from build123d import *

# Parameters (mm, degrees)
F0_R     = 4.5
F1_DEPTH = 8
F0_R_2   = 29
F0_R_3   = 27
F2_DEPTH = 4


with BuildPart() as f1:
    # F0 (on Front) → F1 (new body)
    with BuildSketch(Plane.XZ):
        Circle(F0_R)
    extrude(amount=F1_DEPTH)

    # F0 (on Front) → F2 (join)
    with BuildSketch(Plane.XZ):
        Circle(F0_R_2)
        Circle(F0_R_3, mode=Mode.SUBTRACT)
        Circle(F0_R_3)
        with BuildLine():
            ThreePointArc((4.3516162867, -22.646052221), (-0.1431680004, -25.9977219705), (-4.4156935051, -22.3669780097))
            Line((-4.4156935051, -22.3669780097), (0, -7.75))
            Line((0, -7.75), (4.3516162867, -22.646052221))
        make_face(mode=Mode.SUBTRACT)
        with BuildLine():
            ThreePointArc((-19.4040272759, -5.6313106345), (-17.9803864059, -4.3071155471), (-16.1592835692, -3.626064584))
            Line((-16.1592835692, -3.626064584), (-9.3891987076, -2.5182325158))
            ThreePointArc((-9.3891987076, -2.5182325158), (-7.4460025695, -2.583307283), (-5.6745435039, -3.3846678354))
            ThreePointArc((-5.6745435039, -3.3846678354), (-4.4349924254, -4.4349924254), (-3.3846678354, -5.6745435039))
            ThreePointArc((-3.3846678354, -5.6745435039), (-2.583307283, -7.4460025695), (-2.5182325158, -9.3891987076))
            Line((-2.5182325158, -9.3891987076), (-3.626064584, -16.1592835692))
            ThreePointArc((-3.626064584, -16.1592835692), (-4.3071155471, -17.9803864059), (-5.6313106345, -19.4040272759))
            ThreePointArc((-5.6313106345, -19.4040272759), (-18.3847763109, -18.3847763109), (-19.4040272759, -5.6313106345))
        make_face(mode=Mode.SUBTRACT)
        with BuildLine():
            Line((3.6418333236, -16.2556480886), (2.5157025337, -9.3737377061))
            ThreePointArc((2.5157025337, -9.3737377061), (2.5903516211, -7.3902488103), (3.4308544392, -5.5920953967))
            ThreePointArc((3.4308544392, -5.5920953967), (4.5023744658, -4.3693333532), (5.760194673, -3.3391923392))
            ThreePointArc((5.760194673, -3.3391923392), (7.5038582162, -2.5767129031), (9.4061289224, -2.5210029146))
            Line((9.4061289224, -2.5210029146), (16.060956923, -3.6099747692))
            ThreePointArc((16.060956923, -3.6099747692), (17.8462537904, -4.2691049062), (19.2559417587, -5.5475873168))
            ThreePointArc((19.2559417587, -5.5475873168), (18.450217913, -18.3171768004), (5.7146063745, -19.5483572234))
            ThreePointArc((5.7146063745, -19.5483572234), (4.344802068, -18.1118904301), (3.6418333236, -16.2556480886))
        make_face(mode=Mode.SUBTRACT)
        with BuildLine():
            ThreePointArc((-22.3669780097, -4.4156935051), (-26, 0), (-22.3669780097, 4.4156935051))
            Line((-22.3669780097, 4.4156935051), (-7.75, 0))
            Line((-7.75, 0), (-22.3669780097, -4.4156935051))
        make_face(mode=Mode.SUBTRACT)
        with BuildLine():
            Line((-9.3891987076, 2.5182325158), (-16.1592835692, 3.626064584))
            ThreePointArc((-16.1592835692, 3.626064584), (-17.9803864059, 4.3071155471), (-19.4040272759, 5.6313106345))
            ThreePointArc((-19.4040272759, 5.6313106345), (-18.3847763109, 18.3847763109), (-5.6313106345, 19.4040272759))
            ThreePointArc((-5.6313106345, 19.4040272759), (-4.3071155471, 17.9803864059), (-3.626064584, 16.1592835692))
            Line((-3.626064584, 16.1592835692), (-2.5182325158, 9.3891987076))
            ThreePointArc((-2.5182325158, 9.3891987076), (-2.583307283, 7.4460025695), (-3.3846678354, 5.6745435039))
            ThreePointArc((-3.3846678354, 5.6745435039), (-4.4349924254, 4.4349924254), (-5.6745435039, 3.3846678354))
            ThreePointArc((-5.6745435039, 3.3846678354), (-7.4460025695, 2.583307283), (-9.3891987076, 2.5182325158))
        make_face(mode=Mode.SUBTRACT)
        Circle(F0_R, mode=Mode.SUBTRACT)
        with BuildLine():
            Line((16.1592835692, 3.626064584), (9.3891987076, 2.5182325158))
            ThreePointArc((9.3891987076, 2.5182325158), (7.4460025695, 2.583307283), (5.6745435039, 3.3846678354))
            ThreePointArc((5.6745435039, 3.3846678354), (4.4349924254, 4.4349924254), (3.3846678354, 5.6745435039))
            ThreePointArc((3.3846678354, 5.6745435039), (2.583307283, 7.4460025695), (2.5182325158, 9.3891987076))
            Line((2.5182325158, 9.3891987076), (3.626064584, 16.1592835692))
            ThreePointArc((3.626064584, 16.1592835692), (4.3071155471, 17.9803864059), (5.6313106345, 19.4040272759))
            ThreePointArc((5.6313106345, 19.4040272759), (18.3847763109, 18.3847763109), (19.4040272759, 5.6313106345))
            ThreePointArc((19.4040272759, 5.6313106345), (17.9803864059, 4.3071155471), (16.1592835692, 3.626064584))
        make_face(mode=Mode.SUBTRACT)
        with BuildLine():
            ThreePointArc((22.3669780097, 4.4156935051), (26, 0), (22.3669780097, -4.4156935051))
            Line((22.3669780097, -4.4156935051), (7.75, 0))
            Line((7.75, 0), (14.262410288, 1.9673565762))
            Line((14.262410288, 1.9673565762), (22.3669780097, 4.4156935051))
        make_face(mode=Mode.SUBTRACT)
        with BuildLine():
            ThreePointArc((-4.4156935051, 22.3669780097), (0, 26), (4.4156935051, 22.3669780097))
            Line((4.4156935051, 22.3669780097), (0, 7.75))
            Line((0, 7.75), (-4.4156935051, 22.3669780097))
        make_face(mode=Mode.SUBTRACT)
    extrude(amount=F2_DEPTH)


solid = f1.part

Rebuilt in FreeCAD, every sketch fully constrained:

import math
import FreeCAD as App
import Part
import Sketcher

doc = App.newDocument("Part")
body = doc.addObject("PartDesign::Body", "Body")

# Sketch on XZ plane
sketch1 = doc.addObject("Sketcher::SketchObject", "Sketch")
body.addObject(sketch1)
sketch1.AttachmentSupport = (doc.XZ_Plane, [""])
sketch1.MapMode = "FlatFace"
sketch1.addGeometry(Part.Circle(App.Vector(0, 0, 0), App.Vector(0, 0, 1), 4.5), False)
sketch1.addConstraint([
    Sketcher.Constraint("Coincident", 0, 3, -1, 1),
    Sketcher.Constraint("Diameter", 0, 9.0),
])
pad1 = doc.addObject("PartDesign::Pad", "Pad")
body.addObject(pad1)
pad1.Profile = sketch1
pad1.Length = 8

# Sketch on XZ plane
sketch2 = doc.addObject("Sketcher::SketchObject", "Sketch001")
body.addObject(sketch2)
sketch2.AttachmentSupport = (doc.XZ_Plane, [""])
sketch2.MapMode = "FlatFace"
sketch2.addGeometry([
    Part.Circle(App.Vector(0, 0, 0), App.Vector(0, 0, 1), 29),  # 0
    Part.LineSegment(App.Vector(0, -7.8, 0), App.Vector(4.4, -22.6, 0)),  # 1
    Part.ArcOfCircle(Part.Circle(App.Vector(0, -21.5, 0), App.Vector(0, 0, 1), 4.5), math.radians(-169), math.radians(-15)),  # 2
    Part.LineSegment(App.Vector(-4.4, -22.4, 0), App.Vector(0, -7.8, 0)),  # 3
    Part.ArcOfCircle(Part.Circle(App.Vector(-11.4, -11.4, 0), App.Vector(0, 0, 1), 9.9), math.radians(144), math.radians(306)),  # 4
    Part.ArcOfCircle(Part.Circle(App.Vector(-15.4, -8.6, 0), App.Vector(0, 0, 1), 5), math.radians(99), math.radians(144)),  # 5
    Part.LineSegment(App.Vector(-16.2, -3.6, 0), App.Vector(-9.4, -2.5, 0)),  # 6
    Part.ArcOfCircle(Part.Circle(App.Vector(-8.6, -7.5, 0), App.Vector(0, 0, 1), 5), math.radians(54), math.radians(99)),  # 7
    Part.ArcOfCircle(Part.Circle(App.Vector(-11.4, -11.4, 0), App.Vector(0, 0, 1), 9.9), math.radians(35.55), math.radians(54.45)),  # 8
    Part.ArcOfCircle(Part.Circle(App.Vector(-7.5, -8.6, 0), App.Vector(0, 0, 1), 5), math.radians(-9), math.radians(36)),  # 9
    Part.LineSegment(App.Vector(-2.5, -9.4, 0), App.Vector(-3.6, -16.2, 0)),  # 10
    Part.ArcOfCircle(Part.Circle(App.Vector(-8.6, -15.4, 0), App.Vector(0, 0, 1), 5), math.radians(-54), math.radians(-9)),  # 11
    Part.ArcOfCircle(Part.Circle(App.Vector(8.6, -15.4, 0), App.Vector(0, 0, 1), 5), math.radians(-171), math.radians(-125)),  # 12
    Part.LineSegment(App.Vector(3.6, -16.3, 0), App.Vector(2.5, -9.4, 0)),  # 13
    Part.ArcOfCircle(Part.Circle(App.Vector(7.5, -8.6, 0), App.Vector(0, 0, 1), 5), math.radians(143), math.radians(189)),  # 14
    Part.ArcOfCircle(Part.Circle(App.Vector(11.4, -11.5, 0), App.Vector(0, 0, 1), 9.9), math.radians(124.59), math.radians(143.5)),  # 15
    Part.ArcOfCircle(Part.Circle(App.Vector(8.6, -7.5, 0), App.Vector(0, 0, 1), 5), math.radians(81), math.radians(125)),  # 16
    Part.LineSegment(App.Vector(9.4, -2.5, 0), App.Vector(16.1, -3.6, 0)),  # 17
    Part.ArcOfCircle(Part.Circle(App.Vector(15.3, -8.5, 0), App.Vector(0, 0, 1), 5), math.radians(37), math.radians(81)),  # 18
    Part.ArcOfCircle(Part.Circle(App.Vector(11.4, -11.5, 0), App.Vector(0, 0, 1), 9.9), math.radians(-125), math.radians(37)),  # 19
    Part.LineSegment(App.Vector(-7.8, 0, 0), App.Vector(-22.4, -4.4, 0)),  # 20
    Part.ArcOfCircle(Part.Circle(App.Vector(-21.5, 0, 0), App.Vector(0, 0, 1), 4.5), math.radians(101), math.radians(259)),  # 21
    Part.LineSegment(App.Vector(-22.4, 4.4, 0), App.Vector(-7.8, 0, 0)),  # 22
    Part.ArcOfCircle(Part.Circle(App.Vector(-8.6, 7.5, 0), App.Vector(0, 0, 1), 5), math.radians(-99), math.radians(-54)),  # 23
    Part.LineSegment(App.Vector(-9.4, 2.5, 0), App.Vector(-16.2, 3.6, 0)),  # 24
    Part.ArcOfCircle(Part.Circle(App.Vector(-15.4, 8.6, 0), App.Vector(0, 0, 1), 5), math.radians(-144), math.radians(-99)),  # 25
    Part.ArcOfCircle(Part.Circle(App.Vector(-11.4, 11.4, 0), App.Vector(0, 0, 1), 9.9), math.radians(54), math.radians(216)),  # 26
    Part.ArcOfCircle(Part.Circle(App.Vector(-8.6, 15.4, 0), App.Vector(0, 0, 1), 5), math.radians(9), math.radians(54)),  # 27
    Part.LineSegment(App.Vector(-3.6, 16.2, 0), App.Vector(-2.5, 9.4, 0)),  # 28
    Part.ArcOfCircle(Part.Circle(App.Vector(-7.5, 8.6, 0), App.Vector(0, 0, 1), 5), math.radians(-36), math.radians(9)),  # 29
    Part.ArcOfCircle(Part.Circle(App.Vector(-11.4, 11.4, 0), App.Vector(0, 0, 1), 9.9), math.radians(-54.45), math.radians(-35.55)),  # 30
    Part.Circle(App.Vector(0, 0, 0), App.Vector(0, 0, 1), 4.5),  # 31
    Part.ArcOfCircle(Part.Circle(App.Vector(15.4, 8.6, 0), App.Vector(0, 0, 1), 5), math.radians(-81), math.radians(-36)),  # 32
    Part.LineSegment(App.Vector(16.2, 3.6, 0), App.Vector(9.4, 2.5, 0)),  # 33
    Part.ArcOfCircle(Part.Circle(App.Vector(8.6, 7.5, 0), App.Vector(0, 0, 1), 5), math.radians(-126), math.radians(-81)),  # 34
    Part.ArcOfCircle(Part.Circle(App.Vector(11.4, 11.4, 0), App.Vector(0, 0, 1), 9.9), math.radians(-144.45), math.radians(-125.55)),  # 35
    Part.ArcOfCircle(Part.Circle(App.Vector(7.5, 8.6, 0), App.Vector(0, 0, 1), 5), math.radians(171), math.radians(216)),  # 36
    Part.LineSegment(App.Vector(2.5, 9.4, 0), App.Vector(3.6, 16.2, 0)),  # 37
    Part.ArcOfCircle(Part.Circle(App.Vector(8.6, 15.4, 0), App.Vector(0, 0, 1), 5), math.radians(126), math.radians(171)),  # 38
    Part.ArcOfCircle(Part.Circle(App.Vector(11.4, 11.4, 0), App.Vector(0, 0, 1), 9.9), math.radians(-36), math.radians(126)),  # 39
    Part.LineSegment(App.Vector(14.3, 2, 0), App.Vector(22.4, 4.4, 0)),  # 40
    Part.ArcOfCircle(Part.Circle(App.Vector(21.5, 0, 0), App.Vector(0, 0, 1), 4.5), math.radians(-79), math.radians(79)),  # 41
    Part.LineSegment(App.Vector(22.4, -4.4, 0), App.Vector(7.8, 0, 0)),  # 42
    Part.LineSegment(App.Vector(7.8, 0, 0), App.Vector(14.3, 2, 0)),  # 43
    Part.LineSegment(App.Vector(0, 7.8, 0), App.Vector(-4.4, 22.4, 0)),  # 44
    Part.ArcOfCircle(Part.Circle(App.Vector(0, 21.5, 0), App.Vector(0, 0, 1), 4.5), math.radians(11), math.radians(169)),  # 45
    Part.LineSegment(App.Vector(4.4, 22.4, 0), App.Vector(0, 7.8, 0)),  # 46
], False)
sketch2.addConstraint([
    Sketcher.Constraint("Coincident", 1, 2, 2, 2),
    Sketcher.Constraint("Coincident", 2, 1, 3, 1),
    Sketcher.Constraint("Coincident", 3, 2, 1, 1),
    Sketcher.Constraint("Tangent", 4, 1, 5, 2),
    Sketcher.Constraint("Tangent", 5, 1, 6, 1),
    Sketcher.Constraint("Tangent", 6, 2, 7, 2),
    Sketcher.Constraint("Tangent", 7, 1, 8, 2),
    Sketcher.Constraint("Tangent", 8, 1, 9, 2),
    Sketcher.Constraint("Tangent", 9, 1, 10, 1),
    Sketcher.Constraint("Tangent", 10, 2, 11, 2),
    Sketcher.Constraint("Tangent", 11, 1, 4, 2),
    Sketcher.Constraint("Tangent", 12, 1, 13, 1),
    Sketcher.Constraint("Tangent", 13, 2, 14, 2),
    Sketcher.Constraint("Tangent", 14, 1, 15, 2),
    Sketcher.Constraint("Tangent", 15, 1, 16, 2),
    Sketcher.Constraint("Tangent", 16, 1, 17, 1),
    Sketcher.Constraint("Tangent", 17, 2, 18, 2),
    Sketcher.Constraint("Tangent", 18, 1, 19, 2),
    Sketcher.Constraint("Tangent", 19, 1, 12, 2),
    Sketcher.Constraint("Coincident", 20, 2, 21, 2),
    Sketcher.Constraint("Coincident", 21, 1, 22, 1),
    Sketcher.Constraint("Coincident", 22, 2, 20, 1),
    Sketcher.Constraint("Tangent", 23, 1, 24, 1),
    Sketcher.Constraint("Tangent", 24, 2, 25, 2),
    Sketcher.Constraint("Tangent", 25, 1, 26, 2),
    Sketcher.Constraint("Tangent", 26, 1, 27, 2),
    Sketcher.Constraint("Tangent", 27, 1, 28, 1),
    Sketcher.Constraint("Tangent", 28, 2, 29, 2),
    Sketcher.Constraint("Tangent", 29, 1, 30, 2),
    Sketcher.Constraint("Tangent", 30, 1, 23, 2),
    Sketcher.Constraint("Tangent", 32, 1, 33, 1),
    Sketcher.Constraint("Tangent", 33, 2, 34, 2),
    Sketcher.Constraint("Tangent", 34, 1, 35, 2),
    Sketcher.Constraint("Tangent", 35, 1, 36, 2),
    Sketcher.Constraint("Tangent", 36, 1, 37, 1),
    Sketcher.Constraint("Tangent", 37, 2, 38, 2),
    Sketcher.Constraint("Tangent", 38, 1, 39, 2),
    Sketcher.Constraint("Tangent", 39, 1, 32, 2),
    Sketcher.Constraint("Coincident", 40, 2, 41, 2),
    Sketcher.Constraint("Coincident", 41, 1, 42, 1),
    Sketcher.Constraint("Coincident", 42, 2, 43, 1),
    Sketcher.Constraint("Coincident", 43, 2, 40, 1),
    Sketcher.Constraint("Coincident", 44, 2, 45, 2),
    Sketcher.Constraint("Coincident", 45, 1, 46, 1),
    Sketcher.Constraint("Coincident", 46, 2, 44, 1),
    Sketcher.Constraint("Coincident", 0, 3, -1, 1),
    Sketcher.Constraint("Coincident", 31, 3, -1, 1),
    Sketcher.Constraint("Coincident", 8, 3, 4, 3),
    Sketcher.Constraint("Coincident", 19, 3, 15, 3),
    Sketcher.Constraint("Coincident", 30, 3, 26, 3),
    Sketcher.Constraint("Coincident", 39, 3, 35, 3),
    Sketcher.Constraint("Equal", 5, 7),
    Sketcher.Constraint("Equal", 4, 8),
    Sketcher.Constraint("Equal", 7, 9),
    Sketcher.Constraint("Equal", 9, 11),
    Sketcher.Constraint("Equal", 11, 12),
    Sketcher.Constraint("Equal", 12, 14),
    Sketcher.Constraint("Equal", 8, 15),
    Sketcher.Constraint("Equal", 14, 16),
    Sketcher.Constraint("Equal", 16, 18),
    Sketcher.Constraint("Equal", 15, 19),
    Sketcher.Constraint("Equal", 2, 21),
    Sketcher.Constraint("Equal", 18, 23),
    Sketcher.Constraint("Equal", 23, 25),
    Sketcher.Constraint("Equal", 19, 26),
    Sketcher.Constraint("Equal", 25, 27),
    Sketcher.Constraint("Equal", 27, 29),
    Sketcher.Constraint("Equal", 26, 30),
    Sketcher.Constraint("Equal", 21, 31),
    Sketcher.Constraint("Equal", 29, 32),
    Sketcher.Constraint("Equal", 32, 34),
    Sketcher.Constraint("Equal", 30, 35),
    Sketcher.Constraint("Equal", 34, 36),
    Sketcher.Constraint("Equal", 36, 38),
    Sketcher.Constraint("Equal", 35, 39),
    Sketcher.Constraint("Equal", 31, 41),
    Sketcher.Constraint("Equal", 41, 45),
    Sketcher.Constraint("Symmetric", 5, 3, 32, 3, -1, 1),
    Sketcher.Constraint("Symmetric", 7, 3, 34, 3, -1, 1),
    Sketcher.Constraint("Symmetric", 21, 3, 41, 3, -1, 1),
    Sketcher.Constraint("Symmetric", 2, 3, 45, 3, -1, 1),
    Sketcher.Constraint("Symmetric", 9, 1, 36, 1, -1, 1),
    Sketcher.Constraint("Symmetric", 22, 2, 42, 2, -1, 1),
    Sketcher.Constraint("Symmetric", 3, 2, 46, 2, -1, 1),
    Sketcher.Constraint("Symmetric", 25, 3, 32, 3, -2),
    Sketcher.Constraint("Symmetric", 23, 3, 34, 3, -2),
    Sketcher.Constraint("Symmetric", 28, 2, 36, 1, -2),
    Sketcher.Constraint("Symmetric", 21, 1, 40, 2, -2),
    Sketcher.Constraint("Symmetric", 44, 2, 45, 1, -2),
    Sketcher.Constraint("PointOnObject", 3, 2, -2),
    Sketcher.Constraint("PointOnObject", 22, 2, -1),
    Sketcher.Constraint("Perpendicular", 6, 13),
    Sketcher.Constraint("Perpendicular", 10, 17),
    Sketcher.Constraint("Perpendicular", 3, 22),
    Sketcher.Constraint("Parallel", 17, 24),
    Sketcher.Constraint("Parallel", 20, 40),
    Sketcher.Constraint("Parallel", 22, 42),
    Sketcher.Constraint("Parallel", 40, 43),
    Sketcher.Constraint("Perpendicular", 43, 44),
    Sketcher.Constraint("Equal", 6, 10),
    Sketcher.Constraint("Equal", 3, 20),
    Sketcher.Constraint("Diameter", 0, 58.0),
    Sketcher.Constraint("Diameter", 31, 9.0),
    Sketcher.Constraint("Radius", 5, 5.0),
    Sketcher.Constraint("DistanceY", 2, 3, -1, 1, 21.5),
    Sketcher.Constraint("DistanceX", 21, 3, -1, 1, 21.5),
    Sketcher.Constraint("DistanceY", 3, 2, -1, 1, 7.75),
    Sketcher.Constraint("Radius", 4, 9.863987),
    Sketcher.Constraint("DistanceX", 6, 2, -1, 1, 9.389199),
    Sketcher.Constraint("DistanceY", 9, 1, -1, 1, 9.389199),
    Sketcher.Constraint("Distance", 13, 6.97344),
    Sketcher.Constraint("Distance", 40, 8.466308),
    Sketcher.Constraint("DistanceX", 5, 3, -1, 1, 15.351841),
    Sketcher.Constraint("DistanceY", 15, 3, -1, 1, 11.459588),
    Sketcher.Constraint("DistanceY", 2, 1, -1, 1, 22.366978),
    Sketcher.Constraint("DistanceY", 4, 1, -1, 1, 5.631311),
    Sketcher.Constraint("DistanceX", -1, 1, 16, 1, 9.406129),
    Sketcher.Constraint("DistanceX", -1, 1, 18, 1, 19.255942),
    Sketcher.Constraint("Distance", 1, 15.518664),
])
pad2 = doc.addObject("PartDesign::Pad", "Pad001")
body.addObject(pad2)
pad2.Profile = sketch2
pad2.Length = 4

doc.recompute()
